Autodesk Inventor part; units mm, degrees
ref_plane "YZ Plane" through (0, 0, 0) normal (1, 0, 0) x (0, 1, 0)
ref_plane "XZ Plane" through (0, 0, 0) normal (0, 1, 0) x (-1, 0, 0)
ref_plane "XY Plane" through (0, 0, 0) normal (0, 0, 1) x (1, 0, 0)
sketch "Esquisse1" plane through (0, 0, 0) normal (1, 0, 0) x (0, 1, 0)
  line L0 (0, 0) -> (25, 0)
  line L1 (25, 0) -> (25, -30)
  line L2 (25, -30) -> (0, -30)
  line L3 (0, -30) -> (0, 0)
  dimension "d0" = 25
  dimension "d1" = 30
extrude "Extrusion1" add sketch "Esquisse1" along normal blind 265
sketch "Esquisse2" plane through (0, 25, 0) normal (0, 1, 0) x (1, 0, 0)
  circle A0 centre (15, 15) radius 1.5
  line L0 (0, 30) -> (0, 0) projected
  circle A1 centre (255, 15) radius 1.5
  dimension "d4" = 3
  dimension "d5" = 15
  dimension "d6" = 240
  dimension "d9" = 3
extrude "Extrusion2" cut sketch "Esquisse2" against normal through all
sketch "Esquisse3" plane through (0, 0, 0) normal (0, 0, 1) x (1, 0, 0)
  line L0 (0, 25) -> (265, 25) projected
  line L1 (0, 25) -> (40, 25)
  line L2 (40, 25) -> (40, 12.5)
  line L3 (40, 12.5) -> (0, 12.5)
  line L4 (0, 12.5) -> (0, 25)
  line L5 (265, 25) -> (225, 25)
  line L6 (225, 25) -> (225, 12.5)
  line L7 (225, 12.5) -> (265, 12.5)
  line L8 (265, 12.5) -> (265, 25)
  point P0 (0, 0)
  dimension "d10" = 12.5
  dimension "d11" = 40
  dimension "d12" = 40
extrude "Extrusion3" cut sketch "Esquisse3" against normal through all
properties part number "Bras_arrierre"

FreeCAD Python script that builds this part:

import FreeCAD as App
import Part
import Sketcher
Q = App.Units.Quantity


def add_polygon(sketch, points):
    """Adds a closed chain of lines whose ends are joined by coincident constraints."""
    first, n = sketch.GeometryCount, len(points)
    for a, b in zip(points, points[1:] + points[:1]):
        sketch.addGeometry(Part.LineSegment(App.Vector(*a, 0), App.Vector(*b, 0)), False)
    for i in range(n):
        sketch.addConstraint(Sketcher.Constraint("Coincident", first + i, 2, first + (i + 1) % n, 1))

doc = App.newDocument("Part")
body = doc.addObject("PartDesign::Body", "Body")

sketch1 = body.newObject("Sketcher::SketchObject", "Sketch")
sketch1.AttachmentSupport = (doc.getObject("YZ_Plane"), [""])
sketch1.MapMode = "FlatFace"
add_polygon(sketch1, [(25, 0), (0, 0), (0, -30), (25, -30)])
sketch1.addConstraint([
    Sketcher.Constraint("Horizontal", 0),
    Sketcher.Constraint("Vertical", 1),
    Sketcher.Constraint("Horizontal", 2),
    Sketcher.Constraint("Vertical", 3),
    Sketcher.Constraint("Coincident", 0, 2, -1, 1),
    Sketcher.Constraint("DistanceX", 0, 2, 0, 1, Q("25 mm")),
    Sketcher.Constraint("DistanceY", 1, 2, 1, 1, Q("30 mm")),
])
pad1 = body.newObject("PartDesign::Pad", "Pad")
pad1.Profile = sketch1
pad1.Length = 265

sketch2 = body.newObject("Sketcher::SketchObject", "Sketch001")
sketch2.AttachmentSupport = (doc.getObject("XZ_Plane"), [""])
sketch2.MapMode = "FlatFace"
sketch2.AttachmentOffset = App.Placement(App.Vector(0, 0, -25), App.Rotation())
sketch2.addGeometry([
    Part.Circle(App.Vector(15, -15, 0), App.Vector(0, 0, 1), 1.5),
    Part.Circle(App.Vector(255, -15, 0), App.Vector(0, 0, 1), 1.5),
], False)
sketch2.addConstraint([
    Sketcher.Constraint("Equal", 0, 1),
    Sketcher.Constraint("Horizontal", 0, 3, 1, 3),
    Sketcher.Constraint("Diameter", 0, Q("3 mm")),
    Sketcher.Constraint("DistanceX", -1, 1, 0, 3, Q("15 mm")),
    Sketcher.Constraint("DistanceY", 0, 3, -1, 1, Q("15 mm")),
    Sketcher.Constraint("DistanceX", 0, 3, 1, 3, Q("240 mm")),
])
pocket1 = body.newObject("PartDesign::Pocket", "Pocket")
pocket1.Profile = sketch2
pocket1.Type = "ThroughAll"
pocket1.Reversed = True

sketch3 = body.newObject("Sketcher::SketchObject", "Sketch002")
sketch3.AttachmentSupport = (doc.getObject("XY_Plane"), [""])
sketch3.MapMode = "FlatFace"
add_polygon(sketch3, [(265, 25), (225, 25), (225, 12.5), (265, 12.5)])
add_polygon(sketch3, [(40, 25), (0, 25), (0, 12.5), (40, 12.5)])
sketch3.addConstraint([
    Sketcher.Constraint("Horizontal", 0),
    Sketcher.Constraint("Vertical", 1),
    Sketcher.Constraint("Horizontal", 2),
    Sketcher.Constraint("Vertical", 3),
    Sketcher.Constraint("Horizontal", 4),
    Sketcher.Constraint("Vertical", 5),
    Sketcher.Constraint("Horizontal", 6),
    Sketcher.Constraint("Vertical", 7),
    Sketcher.Constraint("PointOnObject", 4, 2, -2),
    Sketcher.Constraint("Horizontal", 3, 2, 4, 2),
    Sketcher.Constraint("Horizontal", 2, 2, 5, 2),
    Sketcher.Constraint("Equal", 2, 4),
    Sketcher.Constraint("DistanceX", 0, 2, 0, 1, Q("40 mm")),
    Sketcher.Constraint("DistanceY", 1, 2, 1, 1, Q("12.5 mm")),
    Sketcher.Constraint("DistanceY", -1, 1, 1, 2, Q("12.5 mm")),
    Sketcher.Constraint("DistanceX", -1, 1, 0, 2, Q("225 mm")),
])
pocket2 = body.newObject("PartDesign::Pocket", "Pocket001")
pocket2.Profile = sketch3
pocket2.Type = "ThroughAll"

doc.recompute()
